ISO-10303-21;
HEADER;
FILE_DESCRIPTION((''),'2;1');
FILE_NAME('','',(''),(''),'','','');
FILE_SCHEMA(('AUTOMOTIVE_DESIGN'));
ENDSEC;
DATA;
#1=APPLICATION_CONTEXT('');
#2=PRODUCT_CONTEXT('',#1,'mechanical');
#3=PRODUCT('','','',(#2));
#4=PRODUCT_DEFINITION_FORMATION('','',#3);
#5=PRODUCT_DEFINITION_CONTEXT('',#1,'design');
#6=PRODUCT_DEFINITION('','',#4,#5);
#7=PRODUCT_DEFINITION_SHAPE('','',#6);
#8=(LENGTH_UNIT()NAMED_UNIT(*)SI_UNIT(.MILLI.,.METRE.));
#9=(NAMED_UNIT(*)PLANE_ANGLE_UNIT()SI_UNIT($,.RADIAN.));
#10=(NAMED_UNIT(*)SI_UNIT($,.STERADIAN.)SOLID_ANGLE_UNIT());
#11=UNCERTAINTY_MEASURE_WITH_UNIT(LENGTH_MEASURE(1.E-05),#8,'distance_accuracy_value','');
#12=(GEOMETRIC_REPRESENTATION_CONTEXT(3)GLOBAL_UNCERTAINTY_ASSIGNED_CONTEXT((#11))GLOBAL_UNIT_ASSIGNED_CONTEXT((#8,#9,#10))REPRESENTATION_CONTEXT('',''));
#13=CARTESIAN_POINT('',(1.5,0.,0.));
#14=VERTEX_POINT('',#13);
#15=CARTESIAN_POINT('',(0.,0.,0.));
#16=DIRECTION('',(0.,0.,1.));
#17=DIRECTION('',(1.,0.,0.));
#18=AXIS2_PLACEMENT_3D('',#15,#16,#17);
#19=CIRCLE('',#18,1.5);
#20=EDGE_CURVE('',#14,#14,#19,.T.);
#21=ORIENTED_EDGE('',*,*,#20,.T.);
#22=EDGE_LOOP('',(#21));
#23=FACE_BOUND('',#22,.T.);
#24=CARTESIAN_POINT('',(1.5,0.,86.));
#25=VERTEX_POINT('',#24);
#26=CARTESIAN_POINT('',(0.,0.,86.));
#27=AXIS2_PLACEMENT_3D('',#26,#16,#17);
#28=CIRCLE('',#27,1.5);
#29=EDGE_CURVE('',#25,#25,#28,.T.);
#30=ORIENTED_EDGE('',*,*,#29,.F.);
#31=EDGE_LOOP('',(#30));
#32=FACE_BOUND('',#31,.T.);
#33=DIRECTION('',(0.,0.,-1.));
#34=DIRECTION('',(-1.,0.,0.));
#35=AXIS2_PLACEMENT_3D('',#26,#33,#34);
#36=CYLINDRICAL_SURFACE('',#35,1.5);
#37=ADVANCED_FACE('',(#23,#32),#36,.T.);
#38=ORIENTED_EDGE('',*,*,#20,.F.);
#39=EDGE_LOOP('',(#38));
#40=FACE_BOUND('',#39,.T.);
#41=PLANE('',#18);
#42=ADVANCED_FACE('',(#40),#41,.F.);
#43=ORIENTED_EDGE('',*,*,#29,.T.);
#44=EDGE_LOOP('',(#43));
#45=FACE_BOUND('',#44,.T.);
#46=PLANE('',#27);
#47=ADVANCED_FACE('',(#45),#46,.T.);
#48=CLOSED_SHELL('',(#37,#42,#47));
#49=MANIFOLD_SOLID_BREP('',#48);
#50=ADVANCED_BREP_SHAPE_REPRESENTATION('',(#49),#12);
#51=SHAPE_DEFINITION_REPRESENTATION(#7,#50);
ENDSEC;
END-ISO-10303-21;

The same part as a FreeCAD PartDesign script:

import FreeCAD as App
import Part
import Sketcher

V = App.Vector
Q = App.Units.Quantity

doc = App.newDocument("Part")
body = doc.addObject("PartDesign::Body", "Body")

sketch1 = body.newObject("Sketcher::SketchObject", "Sketch")
sketch1.AttachmentSupport = (doc.getObject("XY_Plane"), [""])
sketch1.MapMode = "FlatFace"
sketch1.addGeometry(Part.Circle(V(0, 0, 0), V(0, 0, 1), 1.5), False)
sketch1.addConstraint([
    Sketcher.Constraint("Coincident", 0, 3, -1, 1),
    Sketcher.Constraint("Diameter", 0, Q("3 mm")),
])
pad1 = body.newObject("PartDesign::Pad", "Pad")
pad1.Profile = sketch1
pad1.Length = 86

doc.recompute()
